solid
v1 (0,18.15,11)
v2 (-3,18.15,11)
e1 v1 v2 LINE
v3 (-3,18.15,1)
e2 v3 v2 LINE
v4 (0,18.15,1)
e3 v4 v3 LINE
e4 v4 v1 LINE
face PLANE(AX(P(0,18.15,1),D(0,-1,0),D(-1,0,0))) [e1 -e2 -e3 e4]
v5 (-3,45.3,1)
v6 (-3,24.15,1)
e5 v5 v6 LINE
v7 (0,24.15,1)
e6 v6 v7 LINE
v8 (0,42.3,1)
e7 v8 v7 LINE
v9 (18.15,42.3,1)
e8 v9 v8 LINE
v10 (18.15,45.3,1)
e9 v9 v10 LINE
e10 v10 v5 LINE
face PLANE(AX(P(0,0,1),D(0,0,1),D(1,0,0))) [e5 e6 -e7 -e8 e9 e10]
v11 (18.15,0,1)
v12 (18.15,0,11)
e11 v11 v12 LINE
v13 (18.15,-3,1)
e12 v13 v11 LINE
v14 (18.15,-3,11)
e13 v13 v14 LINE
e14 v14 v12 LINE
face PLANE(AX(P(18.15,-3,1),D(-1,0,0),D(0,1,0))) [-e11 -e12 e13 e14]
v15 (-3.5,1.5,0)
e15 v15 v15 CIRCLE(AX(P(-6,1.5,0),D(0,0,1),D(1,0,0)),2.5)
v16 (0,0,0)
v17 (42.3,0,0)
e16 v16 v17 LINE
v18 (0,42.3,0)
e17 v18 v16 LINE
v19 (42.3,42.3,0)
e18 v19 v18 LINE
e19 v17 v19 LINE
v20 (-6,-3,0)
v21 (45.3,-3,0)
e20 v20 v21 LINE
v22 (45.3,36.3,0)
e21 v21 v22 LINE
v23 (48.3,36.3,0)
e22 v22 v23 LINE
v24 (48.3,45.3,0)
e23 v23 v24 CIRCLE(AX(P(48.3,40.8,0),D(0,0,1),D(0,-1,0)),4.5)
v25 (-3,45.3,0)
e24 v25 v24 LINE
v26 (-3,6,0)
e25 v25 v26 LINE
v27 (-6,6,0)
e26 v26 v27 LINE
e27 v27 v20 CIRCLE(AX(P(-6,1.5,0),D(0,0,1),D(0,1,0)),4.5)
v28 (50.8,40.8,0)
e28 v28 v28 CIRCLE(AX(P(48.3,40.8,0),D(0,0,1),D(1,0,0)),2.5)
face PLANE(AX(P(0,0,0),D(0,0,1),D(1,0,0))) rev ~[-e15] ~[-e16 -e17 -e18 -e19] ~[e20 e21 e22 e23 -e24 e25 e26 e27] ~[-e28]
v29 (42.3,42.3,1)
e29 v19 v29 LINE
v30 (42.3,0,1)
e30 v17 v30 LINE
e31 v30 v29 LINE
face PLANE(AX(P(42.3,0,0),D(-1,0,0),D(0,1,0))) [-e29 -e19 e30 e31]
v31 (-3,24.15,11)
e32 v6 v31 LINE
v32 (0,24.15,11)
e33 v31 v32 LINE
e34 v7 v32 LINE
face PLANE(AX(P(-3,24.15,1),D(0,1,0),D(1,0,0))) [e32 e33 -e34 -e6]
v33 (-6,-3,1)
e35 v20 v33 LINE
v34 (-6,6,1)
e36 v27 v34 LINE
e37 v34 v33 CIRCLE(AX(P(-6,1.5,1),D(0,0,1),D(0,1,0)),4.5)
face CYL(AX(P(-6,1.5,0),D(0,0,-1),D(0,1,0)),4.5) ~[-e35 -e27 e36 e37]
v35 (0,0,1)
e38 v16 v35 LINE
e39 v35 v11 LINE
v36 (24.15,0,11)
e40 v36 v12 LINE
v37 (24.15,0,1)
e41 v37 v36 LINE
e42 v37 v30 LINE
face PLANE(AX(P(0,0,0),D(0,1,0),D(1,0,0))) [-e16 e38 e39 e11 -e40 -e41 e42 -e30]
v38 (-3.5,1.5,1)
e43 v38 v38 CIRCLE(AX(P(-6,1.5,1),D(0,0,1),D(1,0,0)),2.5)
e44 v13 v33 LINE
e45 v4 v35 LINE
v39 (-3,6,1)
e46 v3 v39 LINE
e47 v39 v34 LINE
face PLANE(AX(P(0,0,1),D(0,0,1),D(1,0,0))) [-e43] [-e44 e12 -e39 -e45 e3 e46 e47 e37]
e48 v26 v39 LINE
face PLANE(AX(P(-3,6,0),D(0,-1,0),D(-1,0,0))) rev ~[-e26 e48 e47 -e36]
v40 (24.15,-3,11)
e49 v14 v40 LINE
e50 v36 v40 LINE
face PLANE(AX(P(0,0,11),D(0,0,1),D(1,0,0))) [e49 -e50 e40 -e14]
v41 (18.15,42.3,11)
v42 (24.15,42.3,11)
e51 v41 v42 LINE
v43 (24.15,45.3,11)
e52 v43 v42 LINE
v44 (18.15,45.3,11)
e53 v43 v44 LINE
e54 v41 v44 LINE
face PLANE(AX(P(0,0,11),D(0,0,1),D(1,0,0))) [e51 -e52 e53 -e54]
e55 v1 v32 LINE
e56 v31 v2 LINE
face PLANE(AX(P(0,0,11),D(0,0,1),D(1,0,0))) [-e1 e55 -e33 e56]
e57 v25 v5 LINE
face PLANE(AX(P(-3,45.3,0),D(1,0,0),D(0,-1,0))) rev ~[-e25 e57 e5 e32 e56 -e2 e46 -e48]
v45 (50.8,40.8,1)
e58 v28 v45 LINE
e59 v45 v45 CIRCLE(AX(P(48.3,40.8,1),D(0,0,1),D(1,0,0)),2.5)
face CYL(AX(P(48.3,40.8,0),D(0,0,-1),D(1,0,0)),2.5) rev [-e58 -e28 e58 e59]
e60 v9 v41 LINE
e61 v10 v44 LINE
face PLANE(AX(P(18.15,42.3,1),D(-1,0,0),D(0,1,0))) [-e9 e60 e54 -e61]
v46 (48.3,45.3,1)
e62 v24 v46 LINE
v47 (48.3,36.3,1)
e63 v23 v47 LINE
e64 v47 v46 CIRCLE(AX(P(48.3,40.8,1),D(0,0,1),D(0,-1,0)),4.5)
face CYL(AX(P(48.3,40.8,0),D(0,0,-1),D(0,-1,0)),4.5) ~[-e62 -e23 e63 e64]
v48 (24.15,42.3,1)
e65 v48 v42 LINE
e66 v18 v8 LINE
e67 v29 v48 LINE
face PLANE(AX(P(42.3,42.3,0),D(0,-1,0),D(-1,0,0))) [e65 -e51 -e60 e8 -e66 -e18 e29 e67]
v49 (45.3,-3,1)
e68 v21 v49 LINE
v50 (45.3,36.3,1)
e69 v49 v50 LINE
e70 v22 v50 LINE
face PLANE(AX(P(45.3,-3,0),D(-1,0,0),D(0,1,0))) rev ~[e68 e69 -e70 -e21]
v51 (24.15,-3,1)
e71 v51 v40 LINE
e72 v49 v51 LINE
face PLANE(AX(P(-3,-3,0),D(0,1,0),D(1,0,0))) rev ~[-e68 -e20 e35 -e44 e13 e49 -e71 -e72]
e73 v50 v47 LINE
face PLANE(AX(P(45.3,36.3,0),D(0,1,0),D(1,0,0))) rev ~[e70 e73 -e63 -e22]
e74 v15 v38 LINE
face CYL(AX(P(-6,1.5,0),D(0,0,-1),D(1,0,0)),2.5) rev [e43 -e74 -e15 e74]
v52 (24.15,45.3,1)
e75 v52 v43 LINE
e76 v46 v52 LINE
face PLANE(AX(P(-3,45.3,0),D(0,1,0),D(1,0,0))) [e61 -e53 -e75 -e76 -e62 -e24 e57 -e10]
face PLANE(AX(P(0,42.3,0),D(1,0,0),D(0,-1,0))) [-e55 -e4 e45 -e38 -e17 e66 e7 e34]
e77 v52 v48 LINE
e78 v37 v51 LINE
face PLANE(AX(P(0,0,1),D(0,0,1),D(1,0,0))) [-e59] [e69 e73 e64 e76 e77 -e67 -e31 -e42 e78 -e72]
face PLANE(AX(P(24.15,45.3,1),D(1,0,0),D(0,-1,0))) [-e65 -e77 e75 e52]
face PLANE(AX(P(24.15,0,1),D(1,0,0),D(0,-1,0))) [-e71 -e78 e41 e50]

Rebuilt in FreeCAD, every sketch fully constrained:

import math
import FreeCAD as App
import Part
import Sketcher
Q = App.Units.Quantity

doc = App.newDocument("Part")
params = doc.addObject("Spreadsheet::Sheet", "Params")
for row, (alias, value) in enumerate([
    ("sketch1_diameter", "5 mm"),
    ("sketch1_radius", "4.5 mm"),
    ("sketch1_width", "3 mm"),
    ("sketch1_width2", "42.3 mm"),
    ("pad1_length", "1 mm"),
    ("sketch2_width", "6 mm"),
    ("sketch2_width2", "3 mm"),
    ("pad2_length", "10 mm"),
], start=1):
    params.set(f"A{row}", alias)
    params.set(f"B{row}", "=" + value)
    params.setAlias(f"B{row}", alias)

body = doc.addObject("PartDesign::Body", "Body")

# Sketch on XY plane
sketch1 = body.newObject("Sketcher::SketchObject", "Sketch")
sketch1.AttachmentSupport = (doc.getObject("XY_Plane"), [""])
sketch1.MapMode = "FlatFace"
sketch1.addGeometry(Part.LineSegment(App.Vector(45.3, -3, 0), App.Vector(45.3, 36.3, 0)), False)
sketch1.addGeometry(Part.LineSegment(App.Vector(45.3, 36.3, 0), App.Vector(48.3, 36.3, 0)), False)
sketch1.addGeometry(Part.ArcOfCircle(Part.Circle(App.Vector(48.3, 40.8, 0), App.Vector(0, 0, 1), 4.5), math.radians(-90), math.radians(90)), False)
sketch1.addGeometry(Part.LineSegment(App.Vector(48.3, 45.3, 0), App.Vector(-3, 45.3, 0)), False)
sketch1.addGeometry(Part.LineSegment(App.Vector(-3, 45.3, 0), App.Vector(-3, 6, 0)), False)
sketch1.addGeometry(Part.LineSegment(App.Vector(-3, 6, 0), App.Vector(-6, 6, 0)), False)
sketch1.addGeometry(Part.ArcOfCircle(Part.Circle(App.Vector(-6, 1.5, 0), App.Vector(0, 0, 1), 4.5), math.radians(90), math.radians(270)), False)
sketch1.addGeometry(Part.LineSegment(App.Vector(-6, -3, 0), App.Vector(45.3, -3, 0)), False)
sketch1.addGeometry(Part.LineSegment(App.Vector(42.3, 0, 0), App.Vector(0, 0, 0)), False)
sketch1.addGeometry(Part.LineSegment(App.Vector(0, 0, 0), App.Vector(0, 42.3, 0)), False)
sketch1.addGeometry(Part.LineSegment(App.Vector(0, 42.3, 0), App.Vector(42.3, 42.3, 0)), False)
sketch1.addGeometry(Part.LineSegment(App.Vector(42.3, 42.3, 0), App.Vector(42.3, 0, 0)), False)
sketch1.addGeometry(Part.Circle(App.Vector(-6, 1.5, 0), App.Vector(0, 0, 1), 2.5), False)
sketch1.addGeometry(Part.Circle(App.Vector(48.3, 40.8, 0), App.Vector(0, 0, 1), 2.5), False)
sketch1.addConstraint(Sketcher.Constraint("Coincident", 0, 2, 1, 1))
sketch1.addConstraint(Sketcher.Constraint("Tangent", 1, 2, 2, 1))
sketch1.addConstraint(Sketcher.Constraint("Tangent", 2, 2, 3, 1))
sketch1.addConstraint(Sketcher.Constraint("Coincident", 3, 2, 4, 1))
sketch1.addConstraint(Sketcher.Constraint("Coincident", 4, 2, 5, 1))
sketch1.addConstraint(Sketcher.Constraint("Tangent", 5, 2, 6, 1))
sketch1.addConstraint(Sketcher.Constraint("Tangent", 6, 2, 7, 1))
sketch1.addConstraint(Sketcher.Constraint("Coincident", 7, 2, 0, 1))
sketch1.addConstraint(Sketcher.Constraint("Coincident", 8, 2, 9, 1))
sketch1.addConstraint(Sketcher.Constraint("Coincident", 9, 2, 10, 1))
sketch1.addConstraint(Sketcher.Constraint("Coincident", 10, 2, 11, 1))
sketch1.addConstraint(Sketcher.Constraint("Coincident", 11, 2, 8, 1))
sketch1.addConstraint(Sketcher.Constraint("Vertical", 0))
sketch1.addConstraint(Sketcher.Constraint("Horizontal", 1))
sketch1.addConstraint(Sketcher.Constraint("Horizontal", 3))
sketch1.addConstraint(Sketcher.Constraint("Vertical", 4))
sketch1.addConstraint(Sketcher.Constraint("Horizontal", 5))
sketch1.addConstraint(Sketcher.Constraint("Horizontal", 7))
sketch1.addConstraint(Sketcher.Constraint("Horizontal", 8))
sketch1.addConstraint(Sketcher.Constraint("Vertical", 9))
sketch1.addConstraint(Sketcher.Constraint("Horizontal", 10))
sketch1.addConstraint(Sketcher.Constraint("Vertical", 11))
sketch1.addConstraint(Sketcher.Constraint("Coincident", 8, 2, -1, 1))
sketch1.addConstraint(Sketcher.Constraint("Coincident", 12, 3, 6, 3))
sketch1.addConstraint(Sketcher.Constraint("Coincident", 13, 3, 2, 3))
sketch1.addConstraint(Sketcher.Constraint("Equal", 2, 6))
sketch1.addConstraint(Sketcher.Constraint("Equal", 12, 13))
sketch1.addConstraint(Sketcher.Constraint("Equal", 1, 5))
sketch1.addConstraint(Sketcher.Constraint("Equal", 10, 9))
sketch1.addConstraint(Sketcher.Constraint("Diameter", 12, Q("5 mm")))
sketch1.addConstraint(Sketcher.Constraint("Radius", 2, Q("4.5 mm")))
sketch1.addConstraint(Sketcher.Constraint("DistanceX", 1, 1, 1, 2, Q("3 mm")))
sketch1.addConstraint(Sketcher.Constraint("DistanceX", 8, 2, 8, 1, Q("42.3 mm")))
sketch1.addConstraint(Sketcher.Constraint("DistanceX", 3, 2, -1, 1, Q("3 mm")))
sketch1.addConstraint(Sketcher.Constraint("DistanceY", 6, 2, -1, 1, Q("3 mm")))
sketch1.addConstraint(Sketcher.Constraint("DistanceY", 9, 2, 3, 2, Q("3 mm")))
sketch1.addConstraint(Sketcher.Constraint("DistanceX", 10, 2, 0, 2, Q("3 mm")))
sketch1.setExpression("Constraints[29]", "Params.sketch1_diameter")
sketch1.setExpression("Constraints[30]", "Params.sketch1_radius")
sketch1.setExpression("Constraints[31]", "Params.sketch1_width")
sketch1.setExpression("Constraints[32]", "Params.sketch1_width2")
pad1 = body.newObject("PartDesign::Pad", "Pad")
pad1.Profile = sketch1
pad1.setExpression("Length", "Params.pad1_length")

# Sketch on XY plane
sketch2 = body.newObject("Sketcher::SketchObject", "Sketch001")
sketch2.AttachmentSupport = (doc.getObject("XY_Plane"), [""])
sketch2.MapMode = "FlatFace"
sketch2.AttachmentOffset = App.Placement(App.Vector(0, 0, 1), App.Rotation())
sketch2.addGeometry(Part.LineSegment(App.Vector(-3, 18.1, 0), App.Vector(0, 18.1, 0)), False)
sketch2.addGeometry(Part.LineSegment(App.Vector(0, 18.1, 0), App.Vector(0, 24.1, 0)), False)
sketch2.addGeometry(Part.LineSegment(App.Vector(0, 24.1, 0), App.Vector(-3, 24.1, 0)), False)
sketch2.addGeometry(Part.LineSegment(App.Vector(-3, 24.1, 0), App.Vector(-3, 18.1, 0)), False)
sketch2.addGeometry(Part.LineSegment(App.Vector(24.1, 0, 0), App.Vector(18.1, 0, 0)), False)
sketch2.addGeometry(Part.LineSegment(App.Vector(18.1, 0, 0), App.Vector(18.1, -3, 0)), False)
sketch2.addGeometry(Part.LineSegment(App.Vector(18.1, -3, 0), App.Vector(24.1, -3, 0)), False)
sketch2.addGeometry(Part.LineSegment(App.Vector(24.1, -3, 0), App.Vector(24.1, 0, 0)), False)
sketch2.addGeometry(Part.LineSegment(App.Vector(18.1, 45.3, 0), App.Vector(18.1, 42.3, 0)), False)
sketch2.addGeometry(Part.LineSegment(App.Vector(18.1, 42.3, 0), App.Vector(24.1, 42.3, 0)), False)
sketch2.addGeometry(Part.LineSegment(App.Vector(24.1, 42.3, 0), App.Vector(24.1, 45.3, 0)), False)
sketch2.addGeometry(Part.LineSegment(App.Vector(24.1, 45.3, 0), App.Vector(18.1, 45.3, 0)), False)
sketch2.addConstraint(Sketcher.Constraint("Coincident", 0, 2, 1, 1))
sketch2.addConstraint(Sketcher.Constraint("Coincident", 1, 2, 2, 1))
sketch2.addConstraint(Sketcher.Constraint("Coincident", 2, 2, 3, 1))
sketch2.addConstraint(Sketcher.Constraint("Coincident", 3, 2, 0, 1))
sketch2.addConstraint(Sketcher.Constraint("Coincident", 4, 2, 5, 1))
sketch2.addConstraint(Sketcher.Constraint("Coincident", 5, 2, 6, 1))
sketch2.addConstraint(Sketcher.Constraint("Coincident", 6, 2, 7, 1))
sketch2.addConstraint(Sketcher.Constraint("Coincident", 7, 2, 4, 1))
sketch2.addConstraint(Sketcher.Constraint("Coincident", 8, 2, 9, 1))
sketch2.addConstraint(Sketcher.Constraint("Coincident", 9, 2, 10, 1))
sketch2.addConstraint(Sketcher.Constraint("Coincident", 10, 2, 11, 1))
sketch2.addConstraint(Sketcher.Constraint("Coincident", 11, 2, 8, 1))
sketch2.addConstraint(Sketcher.Constraint("Horizontal", 0))
sketch2.addConstraint(Sketcher.Constraint("Vertical", 1))
sketch2.addConstraint(Sketcher.Constraint("Horizontal", 2))
sketch2.addConstraint(Sketcher.Constraint("Vertical", 3))
sketch2.addConstraint(Sketcher.Constraint("Horizontal", 4))
sketch2.addConstraint(Sketcher.Constraint("Vertical", 5))
sketch2.addConstraint(Sketcher.Constraint("Horizontal", 6))
sketch2.addConstraint(Sketcher.Constraint("Vertical", 7))
sketch2.addConstraint(Sketcher.Constraint("Vertical", 8))
sketch2.addConstraint(Sketcher.Constraint("Horizontal", 9))
sketch2.addConstraint(Sketcher.Constraint("Vertical", 10))
sketch2.addConstraint(Sketcher.Constraint("Horizontal", 11))
sketch2.addConstraint(Sketcher.Constraint("PointOnObject", 0, 2, -2))
sketch2.addConstraint(Sketcher.Constraint("PointOnObject", 4, 2, -1))
sketch2.addConstraint(Sketcher.Constraint("Vertical", 5, 2, 8, 2))
sketch2.addConstraint(Sketcher.Constraint("Vertical", 7, 2, 9, 2))
sketch2.addConstraint(Sketcher.Constraint("Equal", 11, 1))
sketch2.addConstraint(Sketcher.Constraint("Equal", 2, 5))
sketch2.addConstraint(Sketcher.Constraint("Equal", 7, 8))
sketch2.addConstraint(Sketcher.Constraint("DistanceX", 4, 2, 4, 1, Q("6 mm")))
sketch2.addConstraint(Sketcher.Constraint("DistanceX", 0, 1, 0, 2, Q("3 mm")))
sketch2.addConstraint(Sketcher.Constraint("DistanceY", -1, 1, 0, 2, Q("18.15 mm")))
sketch2.addConstraint(Sketcher.Constraint("DistanceX", -1, 1, 4, 2, Q("18.15 mm")))
sketch2.addConstraint(Sketcher.Constraint("DistanceY", 1, 2, 8, 2, Q("18.15 mm")))
sketch2.setExpression("Constraints[31]", "Params.sketch2_width")
sketch2.setExpression("Constraints[32]", "Params.sketch2_width2")
pad2 = body.newObject("PartDesign::Pad", "Pad001")
pad2.Profile = sketch2
pad2.setExpression("Length", "Params.pad2_length")

doc.recompute()
